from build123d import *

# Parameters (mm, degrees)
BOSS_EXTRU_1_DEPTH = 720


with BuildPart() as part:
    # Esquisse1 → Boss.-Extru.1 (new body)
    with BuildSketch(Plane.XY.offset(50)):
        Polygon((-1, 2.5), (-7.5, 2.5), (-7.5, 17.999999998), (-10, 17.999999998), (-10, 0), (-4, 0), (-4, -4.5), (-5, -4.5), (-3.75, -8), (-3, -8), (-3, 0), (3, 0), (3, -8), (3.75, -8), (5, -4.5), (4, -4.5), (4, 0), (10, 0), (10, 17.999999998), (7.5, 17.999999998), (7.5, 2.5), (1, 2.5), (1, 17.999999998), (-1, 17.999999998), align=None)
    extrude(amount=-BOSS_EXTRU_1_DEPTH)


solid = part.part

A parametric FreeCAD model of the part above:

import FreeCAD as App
import Part
import Sketcher
Q = App.Units.Quantity


def add_polygon(sketch, points):
    """Adds a closed chain of lines whose ends are joined by coincident constraints."""
    first, n = sketch.GeometryCount, len(points)
    for a, b in zip(points, points[1:] + points[:1]):
        sketch.addGeometry(Part.LineSegment(App.Vector(*a, 0), App.Vector(*b, 0)), False)
    for i in range(n):
        sketch.addConstraint(Sketcher.Constraint("Coincident", first + i, 2, first + (i + 1) % n, 1))

doc = App.newDocument("Part")
params = doc.addObject("Spreadsheet::Sheet", "Params")
for row, (alias, value) in enumerate([
    ("sketch1_width", "6 mm"),
    ("sketch1_width2", "1 mm"),
    ("sketch1_width3", "2 mm"),
    ("sketch1_height", "18 mm"),
    ("sketch1_height2", "8 mm"),
    ("pad1_length", "720 mm"),
], start=1):
    params.set(f"A{row}", alias)
    params.set(f"B{row}", "=" + value)
    params.setAlias(f"B{row}", alias)

body = doc.addObject("PartDesign::Body", "Body")

# Sketch on XY plane
sketch1 = doc.addObject("Sketcher::SketchObject", "Sketch")
body.addObject(sketch1)
sketch1.AttachmentSupport = (doc.XY_Plane, [""])
sketch1.MapMode = "FlatFace"
sketch1.AttachmentOffset = App.Placement(App.Vector(0, 0, 50), App.Rotation())
add_polygon(sketch1, [(-1, 2.5), (-7.5, 2.5), (-7.5, 18), (-10, 18), (-10, 0), (-4, 0), (-4, -4.5), (-5, -4.5), (-3.75, -8), (-3, -8), (-3, 0), (3, 0), (3, -8), (3.75, -8), (5, -4.5), (4, -4.5), (4, 0), (10, 0), (10, 18), (7.5, 18), (7.5, 2.5), (1, 2.5), (1, 18), (-1, 18)])  # lines 0-23
sketch1.addConstraint([
    Sketcher.Constraint("Horizontal", 0),
    Sketcher.Constraint("Vertical", 1),
    Sketcher.Constraint("Horizontal", 2),
    Sketcher.Constraint("Vertical", 3),
    Sketcher.Constraint("Horizontal", 4),
    Sketcher.Constraint("Vertical", 5),
    Sketcher.Constraint("Horizontal", 6),
    Sketcher.Constraint("Horizontal", 8),
    Sketcher.Constraint("Vertical", 9),
    Sketcher.Constraint("Horizontal", 10),
    Sketcher.Constraint("Vertical", 11),
    Sketcher.Constraint("Horizontal", 12),
    Sketcher.Constraint("Horizontal", 14),
    Sketcher.Constraint("Vertical", 15),
    Sketcher.Constraint("Horizontal", 16),
    Sketcher.Constraint("Vertical", 17),
    Sketcher.Constraint("Horizontal", 18),
    Sketcher.Constraint("Vertical", 19),
    Sketcher.Constraint("Horizontal", 20),
    Sketcher.Constraint("Vertical", 21),
    Sketcher.Constraint("Horizontal", 22),
    Sketcher.Constraint("Vertical", 23),
    Sketcher.Constraint("Symmetric", 9, 2, 10, 2, -1, 1),
    Sketcher.Constraint("Symmetric", 4, 2, 15, 2, -1, 1),
    Sketcher.Constraint("Symmetric", 7, 2, 12, 2, -2),
    Sketcher.Constraint("Symmetric", 6, 2, 13, 2, -2),
    Sketcher.Constraint("Symmetric", 3, 2, 16, 2, -2),
    Sketcher.Constraint("Symmetric", 1, 2, 18, 2, -2),
    Sketcher.Constraint("Symmetric", 20, 2, 23, 2, -2),
    Sketcher.Constraint("Horizontal", 18, 2, 21, 2),
    Sketcher.Constraint("Equal", 4, 10),
    Sketcher.Constraint("DistanceX", 4, 1, 4, 2, Q("6 mm")),
    Sketcher.Constraint("DistanceX", 6, 2, 6, 1, Q("1 mm")),
    Sketcher.Constraint("DistanceX", 22, 2, 22, 1, Q("2 mm")),
    Sketcher.Constraint("DistanceY", 3, 2, 3, 1, Q("18 mm")),
    Sketcher.Constraint("DistanceY", 9, 1, 9, 2, Q("8 mm")),
    Sketcher.Constraint("DistanceX", 0, 2, 0, 1, Q("6.5 mm")),
    Sketcher.Constraint("DistanceX", 2, 2, 2, 1, Q("2.5 mm")),
    Sketcher.Constraint("DistanceY", 1, 1, 1, 2, Q("15.5 mm")),
    Sketcher.Constraint("DistanceY", 5, 2, 5, 1, Q("4.5 mm")),
    Sketcher.Constraint("DistanceX", 8, 1, 8, 2, Q("0.75 mm")),
])
sketch1.setExpression("Constraints[55]", "Params.sketch1_width")
sketch1.setExpression("Constraints[56]", "Params.sketch1_width2")
sketch1.setExpression("Constraints[57]", "Params.sketch1_width3")
sketch1.setExpression("Constraints[58]", "Params.sketch1_height")
sketch1.setExpression("Constraints[59]", "Params.sketch1_height2")
pad1 = doc.addObject("PartDesign::Pad", "Pad")
body.addObject(pad1)
pad1.Profile = sketch1
pad1.setExpression("Length", "Params.pad1_length")
pad1.Reversed = True

doc.recompute()
